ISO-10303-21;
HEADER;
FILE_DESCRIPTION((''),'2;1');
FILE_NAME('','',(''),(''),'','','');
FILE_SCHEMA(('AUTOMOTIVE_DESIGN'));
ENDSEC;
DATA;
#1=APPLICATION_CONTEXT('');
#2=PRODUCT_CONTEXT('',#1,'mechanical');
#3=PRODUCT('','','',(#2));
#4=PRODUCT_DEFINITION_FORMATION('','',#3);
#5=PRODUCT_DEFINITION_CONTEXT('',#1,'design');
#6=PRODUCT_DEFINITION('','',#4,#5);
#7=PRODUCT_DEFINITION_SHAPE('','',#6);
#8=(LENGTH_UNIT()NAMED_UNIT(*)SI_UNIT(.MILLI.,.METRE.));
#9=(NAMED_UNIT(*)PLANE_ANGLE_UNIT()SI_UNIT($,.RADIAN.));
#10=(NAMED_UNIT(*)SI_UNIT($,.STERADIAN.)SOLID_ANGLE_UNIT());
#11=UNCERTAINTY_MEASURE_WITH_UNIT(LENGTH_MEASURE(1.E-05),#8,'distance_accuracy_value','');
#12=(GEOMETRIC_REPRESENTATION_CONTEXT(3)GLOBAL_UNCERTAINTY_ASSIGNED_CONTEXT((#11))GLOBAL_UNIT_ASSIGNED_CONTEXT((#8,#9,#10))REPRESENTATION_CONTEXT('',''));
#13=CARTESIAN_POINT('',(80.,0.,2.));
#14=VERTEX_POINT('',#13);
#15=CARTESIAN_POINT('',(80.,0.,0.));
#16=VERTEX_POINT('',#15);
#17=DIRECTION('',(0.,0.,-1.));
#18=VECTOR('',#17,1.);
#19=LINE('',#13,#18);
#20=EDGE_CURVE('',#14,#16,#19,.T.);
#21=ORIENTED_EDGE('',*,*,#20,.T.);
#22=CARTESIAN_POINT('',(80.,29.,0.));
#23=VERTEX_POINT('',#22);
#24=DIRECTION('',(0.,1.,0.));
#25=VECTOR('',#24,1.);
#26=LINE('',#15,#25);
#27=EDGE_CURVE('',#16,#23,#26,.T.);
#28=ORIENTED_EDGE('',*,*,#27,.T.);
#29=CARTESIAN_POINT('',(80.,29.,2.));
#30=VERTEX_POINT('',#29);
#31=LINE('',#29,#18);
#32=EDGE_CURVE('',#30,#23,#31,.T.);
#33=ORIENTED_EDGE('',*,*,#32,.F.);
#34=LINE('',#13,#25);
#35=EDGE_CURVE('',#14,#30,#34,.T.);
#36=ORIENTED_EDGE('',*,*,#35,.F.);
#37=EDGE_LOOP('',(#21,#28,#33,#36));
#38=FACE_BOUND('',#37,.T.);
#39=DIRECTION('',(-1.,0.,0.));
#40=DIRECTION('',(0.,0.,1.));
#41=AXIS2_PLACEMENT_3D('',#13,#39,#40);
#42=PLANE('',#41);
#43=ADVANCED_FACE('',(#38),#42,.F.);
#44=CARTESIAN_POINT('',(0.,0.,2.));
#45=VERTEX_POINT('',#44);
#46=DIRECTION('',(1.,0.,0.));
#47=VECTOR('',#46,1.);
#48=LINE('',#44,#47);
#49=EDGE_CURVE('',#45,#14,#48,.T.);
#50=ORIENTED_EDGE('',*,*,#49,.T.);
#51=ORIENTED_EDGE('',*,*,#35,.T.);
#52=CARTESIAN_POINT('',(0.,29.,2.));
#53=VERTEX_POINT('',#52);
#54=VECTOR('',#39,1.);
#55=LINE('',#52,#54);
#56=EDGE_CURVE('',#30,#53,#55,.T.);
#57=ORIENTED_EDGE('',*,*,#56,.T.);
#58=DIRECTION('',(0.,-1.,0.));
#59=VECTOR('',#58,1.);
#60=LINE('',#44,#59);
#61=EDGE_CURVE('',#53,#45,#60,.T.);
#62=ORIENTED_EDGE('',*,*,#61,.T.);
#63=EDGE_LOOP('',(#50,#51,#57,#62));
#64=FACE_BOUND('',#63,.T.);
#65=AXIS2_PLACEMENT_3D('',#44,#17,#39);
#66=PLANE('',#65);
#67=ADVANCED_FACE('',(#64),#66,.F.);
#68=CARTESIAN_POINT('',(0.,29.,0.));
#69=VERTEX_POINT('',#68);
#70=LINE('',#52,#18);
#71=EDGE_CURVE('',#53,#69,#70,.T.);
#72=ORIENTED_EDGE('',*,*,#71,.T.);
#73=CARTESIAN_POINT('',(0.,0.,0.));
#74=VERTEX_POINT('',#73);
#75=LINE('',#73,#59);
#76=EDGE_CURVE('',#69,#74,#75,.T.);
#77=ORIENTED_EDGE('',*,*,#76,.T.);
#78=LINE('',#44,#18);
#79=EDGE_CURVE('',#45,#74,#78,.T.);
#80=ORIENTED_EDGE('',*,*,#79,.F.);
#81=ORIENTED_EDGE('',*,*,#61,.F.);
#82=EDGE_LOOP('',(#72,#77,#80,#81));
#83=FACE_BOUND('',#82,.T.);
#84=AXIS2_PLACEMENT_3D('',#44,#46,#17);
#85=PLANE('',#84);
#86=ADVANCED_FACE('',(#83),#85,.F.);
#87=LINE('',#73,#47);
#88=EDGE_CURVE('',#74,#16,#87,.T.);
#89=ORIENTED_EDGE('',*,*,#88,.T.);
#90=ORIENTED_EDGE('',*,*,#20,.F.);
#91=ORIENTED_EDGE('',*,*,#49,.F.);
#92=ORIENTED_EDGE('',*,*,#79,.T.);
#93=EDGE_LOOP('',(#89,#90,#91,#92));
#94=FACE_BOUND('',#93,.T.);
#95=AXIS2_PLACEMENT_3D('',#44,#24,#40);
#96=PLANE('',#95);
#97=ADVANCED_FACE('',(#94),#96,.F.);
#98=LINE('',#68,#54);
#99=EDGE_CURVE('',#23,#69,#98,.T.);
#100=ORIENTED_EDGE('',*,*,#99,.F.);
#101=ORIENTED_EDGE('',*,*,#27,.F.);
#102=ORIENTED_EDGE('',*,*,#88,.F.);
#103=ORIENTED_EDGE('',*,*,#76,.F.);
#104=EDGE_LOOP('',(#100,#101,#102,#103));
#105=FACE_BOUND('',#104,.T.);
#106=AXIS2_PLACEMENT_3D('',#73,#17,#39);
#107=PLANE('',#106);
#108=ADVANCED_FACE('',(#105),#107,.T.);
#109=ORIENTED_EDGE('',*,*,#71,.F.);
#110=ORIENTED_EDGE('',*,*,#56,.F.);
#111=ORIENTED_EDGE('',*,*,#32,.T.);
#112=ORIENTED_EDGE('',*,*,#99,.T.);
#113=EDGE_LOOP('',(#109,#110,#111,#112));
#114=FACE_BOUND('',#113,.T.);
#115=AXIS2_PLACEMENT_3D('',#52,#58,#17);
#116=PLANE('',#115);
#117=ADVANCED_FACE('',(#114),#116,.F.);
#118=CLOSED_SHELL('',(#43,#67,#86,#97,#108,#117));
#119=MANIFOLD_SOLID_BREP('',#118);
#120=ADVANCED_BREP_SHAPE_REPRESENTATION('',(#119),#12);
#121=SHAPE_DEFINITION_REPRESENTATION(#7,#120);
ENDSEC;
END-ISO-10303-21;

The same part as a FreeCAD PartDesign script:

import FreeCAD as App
import Part
import Sketcher
Q = App.Units.Quantity

doc = App.newDocument("Part")
body = doc.addObject("PartDesign::Body", "Body")

# Sketch on XY plane
sketch1 = body.newObject("Sketcher::SketchObject", "Sketch")
sketch1.AttachmentSupport = (doc.getObject("XY_Plane"), [""])
sketch1.MapMode = "FlatFace"
sketch1.addGeometry([
    Part.LineSegment(App.Vector(0, 29, 0), App.Vector(0, 0, 0)),
    Part.LineSegment(App.Vector(0, 0, 0), App.Vector(80, 0, 0)),
    Part.LineSegment(App.Vector(80, 0, 0), App.Vector(80, 29, 0)),
    Part.LineSegment(App.Vector(80, 29, 0), App.Vector(0, 29, 0)),
], False)
sketch1.addConstraint([
    Sketcher.Constraint("Coincident", 0, 2, 1, 1),
    Sketcher.Constraint("Coincident", 1, 2, 2, 1),
    Sketcher.Constraint("Coincident", 2, 2, 3, 1),
    Sketcher.Constraint("Coincident", 3, 2, 0, 1),
    Sketcher.Constraint("Vertical", 0),
    Sketcher.Constraint("Horizontal", 1),
    Sketcher.Constraint("Vertical", 2),
    Sketcher.Constraint("Horizontal", 3),
    Sketcher.Constraint("Coincident", 0, 2, -1, 1),
    Sketcher.Constraint("DistanceX", 1, 1, 1, 2, Q("80 mm")),
    Sketcher.Constraint("DistanceY", 0, 2, 0, 1, Q("29 mm")),
])
pad1 = body.newObject("PartDesign::Pad", "Pad")
pad1.Profile = sketch1
pad1.Length = 2

doc.recompute()
